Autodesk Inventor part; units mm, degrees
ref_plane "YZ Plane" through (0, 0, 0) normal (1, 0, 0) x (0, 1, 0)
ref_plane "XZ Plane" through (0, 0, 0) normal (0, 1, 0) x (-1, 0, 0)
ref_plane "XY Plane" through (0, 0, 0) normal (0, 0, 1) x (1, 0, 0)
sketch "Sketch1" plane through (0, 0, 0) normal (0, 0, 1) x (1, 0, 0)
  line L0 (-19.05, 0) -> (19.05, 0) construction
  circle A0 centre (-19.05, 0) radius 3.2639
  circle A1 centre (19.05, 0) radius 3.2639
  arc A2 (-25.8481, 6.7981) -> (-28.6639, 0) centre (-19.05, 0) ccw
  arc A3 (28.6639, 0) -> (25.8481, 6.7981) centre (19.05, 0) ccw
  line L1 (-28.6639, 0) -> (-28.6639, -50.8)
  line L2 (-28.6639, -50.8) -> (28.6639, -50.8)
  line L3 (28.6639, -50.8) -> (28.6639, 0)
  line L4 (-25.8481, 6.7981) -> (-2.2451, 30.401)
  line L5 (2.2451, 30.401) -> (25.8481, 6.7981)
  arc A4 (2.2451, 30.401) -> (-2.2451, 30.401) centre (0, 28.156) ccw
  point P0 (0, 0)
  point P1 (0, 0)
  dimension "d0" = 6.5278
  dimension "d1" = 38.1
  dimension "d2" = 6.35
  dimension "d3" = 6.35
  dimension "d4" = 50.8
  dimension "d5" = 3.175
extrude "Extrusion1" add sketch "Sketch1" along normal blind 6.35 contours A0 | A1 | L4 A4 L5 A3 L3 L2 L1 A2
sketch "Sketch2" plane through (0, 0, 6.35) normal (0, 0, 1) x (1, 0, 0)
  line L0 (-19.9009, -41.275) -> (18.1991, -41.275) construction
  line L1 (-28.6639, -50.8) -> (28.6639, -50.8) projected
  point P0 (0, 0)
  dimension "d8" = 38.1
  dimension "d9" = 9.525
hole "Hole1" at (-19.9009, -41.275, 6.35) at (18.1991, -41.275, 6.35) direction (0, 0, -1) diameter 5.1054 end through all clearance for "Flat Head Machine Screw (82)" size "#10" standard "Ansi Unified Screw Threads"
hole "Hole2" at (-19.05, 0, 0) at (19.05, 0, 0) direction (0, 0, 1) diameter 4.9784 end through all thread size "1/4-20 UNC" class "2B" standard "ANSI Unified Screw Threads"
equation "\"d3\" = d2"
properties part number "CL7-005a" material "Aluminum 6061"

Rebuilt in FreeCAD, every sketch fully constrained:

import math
import FreeCAD as App
import Part
import Sketcher

V = App.Vector
Q = App.Units.Quantity

doc = App.newDocument("Part")
params = doc.addObject("Spreadsheet::Sheet", "Params")
for row, (alias, value) in enumerate([
    ("sketch1_height", "2 in"),
    ("sketch1_radius", "0.125 in"),
    ("pad1_length", "0.25 in"),
    ("sketch2_diameter", "0.201 in"),
    ("hole_diameter", "0.201 in"),
    ("sketch3_diameter", "0.196 in"),
    ("hole2_diameter", "0.196 in"),
], start=1):
    params.set(f"A{row}", alias)
    params.set(f"B{row}", "=" + value)
    params.setAlias(f"B{row}", alias)

body = doc.addObject("PartDesign::Body", "Body")

# Sketch on XY plane
sketch1 = body.newObject("Sketcher::SketchObject", "Sketch")
sketch1.AttachmentSupport = (doc.getObject("XY_Plane"), [""])
sketch1.MapMode = "FlatFace"
sketch1.addGeometry([
    Part.LineSegment(V(-2.2, 30.4, 0), V(-25.8, 6.8, 0)),  # 0
    Part.ArcOfCircle(Part.Circle(V(-19.1, 0, 0), V(0, 0, 1), 9.6), math.radians(135), math.radians(180)),  # 1
    Part.LineSegment(V(-28.7, 0, 0), V(-28.7, -50.8, 0)),  # 2
    Part.LineSegment(V(-28.7, -50.8, 0), V(28.7, -50.8, 0)),  # 3
    Part.LineSegment(V(28.7, -50.8, 0), V(28.7, 0, 0)),  # 4
    Part.ArcOfCircle(Part.Circle(V(19.1, 0, 0), V(0, 0, 1), 9.6), math.radians(0), math.radians(45)),  # 5
    Part.LineSegment(V(25.8, 6.8, 0), V(2.2, 30.4, 0)),  # 6
    Part.ArcOfCircle(Part.Circle(V(0, 28.2, 0), V(0, 0, 1), 3.2), math.radians(45), math.radians(135)),  # 7
], False)
sketch1.addConstraint([
    Sketcher.Constraint("Tangent", 0, 2, 1, 1),
    Sketcher.Constraint("Tangent", 1, 2, 2, 1),
    Sketcher.Constraint("Coincident", 2, 2, 3, 1),
    Sketcher.Constraint("Coincident", 3, 2, 4, 1),
    Sketcher.Constraint("Tangent", 4, 2, 5, 1),
    Sketcher.Constraint("Tangent", 5, 2, 6, 1),
    Sketcher.Constraint("Tangent", 6, 2, 7, 1),
    Sketcher.Constraint("Tangent", 7, 2, 0, 1),
    Sketcher.Constraint("Vertical", 2),
    Sketcher.Constraint("Horizontal", 3),
    Sketcher.Constraint("Vertical", 4),
    Sketcher.Constraint("Equal", 1, 5),
    Sketcher.Constraint("Symmetric", 1, 3, 5, 3, -1, 1),
    Sketcher.Constraint("Symmetric", 0, 2, 5, 2, -2),
    Sketcher.Constraint("Perpendicular", 0, 6),
    Sketcher.Constraint("DistanceY", 2, 2, 2, 1, Q("2 in")),
    Sketcher.Constraint("Radius", 7, Q("0.125 in")),
    Sketcher.Constraint("DistanceX", 1, 3, 5, 3, Q("1.5 in")),
    Sketcher.Constraint("Radius", 1, Q("0.3785 in")),
])
sketch1.setExpression("Constraints[15]", "Params.sketch1_height")
sketch1.setExpression("Constraints[16]", "Params.sketch1_radius")
pad1 = body.newObject("PartDesign::Pad", "Pad")
pad1.Profile = sketch1
pad1.setExpression("Length", "Params.pad1_length")

# Sketch on XY plane
sketch2 = body.newObject("Sketcher::SketchObject", "Sketch001")
sketch2.AttachmentSupport = (doc.getObject("XY_Plane"), [""])
sketch2.MapMode = "FlatFace"
sketch2.AttachmentOffset = App.Placement(V(0, 0, 0.25 * 25.4), App.Rotation())
sketch2.addGeometry([
    Part.Circle(V(-19.9, -41.3, 0), V(0, 0, 1), 2.6),
    Part.Circle(V(18.2, -41.3, 0), V(0, 0, 1), 2.6),
], False)
sketch2.addConstraint([
    Sketcher.Constraint("Equal", 0, 1),
    Sketcher.Constraint("Horizontal", 0, 3, 1, 3),
    Sketcher.Constraint("Diameter", 0, Q("0.201 in")),
    Sketcher.Constraint("DistanceX", 0, 3, 1, 3, Q("1.5 in")),
    Sketcher.Constraint("DistanceY", 0, 3, -1, 1, Q("1.625 in")),
    Sketcher.Constraint("DistanceX", 0, 3, -1, 1, Q("0.7835 in")),
])
sketch2.setExpression("Constraints[2]", "Params.sketch2_diameter")
doc.recompute()
hole = body.newObject("PartDesign::Hole", "Hole")
hole.Profile = sketch2
hole.ThreadType = "None"
hole.setExpression("Diameter", "Params.hole_diameter")
hole.DepthType = "ThroughAll"

# Sketch on XY plane
sketch3 = body.newObject("Sketcher::SketchObject", "Sketch002")
sketch3.AttachmentSupport = (doc.getObject("XY_Plane"), [""])
sketch3.MapMode = "FlatFace"
sketch3.addGeometry([
    Part.Circle(V(-19.1, 0, 0), V(0, 0, 1), 2.5),
    Part.Circle(V(19.1, 0, 0), V(0, 0, 1), 2.5),
], False)
sketch3.addConstraint([
    Sketcher.Constraint("Equal", 0, 1),
    Sketcher.Constraint("Symmetric", 0, 3, 1, 3, -1, 1),
    Sketcher.Constraint("PointOnObject", 0, 3, -1),
    Sketcher.Constraint("Diameter", 0, Q("0.196 in")),
    Sketcher.Constraint("DistanceX", 0, 3, 1, 3, Q("1.5 in")),
])
sketch3.setExpression("Constraints[3]", "Params.sketch3_diameter")
doc.recompute()
hole2 = body.newObject("PartDesign::Hole", "Hole001")
hole2.Profile = sketch3
hole2.ThreadType = "None"
hole2.setExpression("Diameter", "Params.hole2_diameter")
hole2.DepthType = "ThroughAll"
hole2.Reversed = True

doc.recompute()
